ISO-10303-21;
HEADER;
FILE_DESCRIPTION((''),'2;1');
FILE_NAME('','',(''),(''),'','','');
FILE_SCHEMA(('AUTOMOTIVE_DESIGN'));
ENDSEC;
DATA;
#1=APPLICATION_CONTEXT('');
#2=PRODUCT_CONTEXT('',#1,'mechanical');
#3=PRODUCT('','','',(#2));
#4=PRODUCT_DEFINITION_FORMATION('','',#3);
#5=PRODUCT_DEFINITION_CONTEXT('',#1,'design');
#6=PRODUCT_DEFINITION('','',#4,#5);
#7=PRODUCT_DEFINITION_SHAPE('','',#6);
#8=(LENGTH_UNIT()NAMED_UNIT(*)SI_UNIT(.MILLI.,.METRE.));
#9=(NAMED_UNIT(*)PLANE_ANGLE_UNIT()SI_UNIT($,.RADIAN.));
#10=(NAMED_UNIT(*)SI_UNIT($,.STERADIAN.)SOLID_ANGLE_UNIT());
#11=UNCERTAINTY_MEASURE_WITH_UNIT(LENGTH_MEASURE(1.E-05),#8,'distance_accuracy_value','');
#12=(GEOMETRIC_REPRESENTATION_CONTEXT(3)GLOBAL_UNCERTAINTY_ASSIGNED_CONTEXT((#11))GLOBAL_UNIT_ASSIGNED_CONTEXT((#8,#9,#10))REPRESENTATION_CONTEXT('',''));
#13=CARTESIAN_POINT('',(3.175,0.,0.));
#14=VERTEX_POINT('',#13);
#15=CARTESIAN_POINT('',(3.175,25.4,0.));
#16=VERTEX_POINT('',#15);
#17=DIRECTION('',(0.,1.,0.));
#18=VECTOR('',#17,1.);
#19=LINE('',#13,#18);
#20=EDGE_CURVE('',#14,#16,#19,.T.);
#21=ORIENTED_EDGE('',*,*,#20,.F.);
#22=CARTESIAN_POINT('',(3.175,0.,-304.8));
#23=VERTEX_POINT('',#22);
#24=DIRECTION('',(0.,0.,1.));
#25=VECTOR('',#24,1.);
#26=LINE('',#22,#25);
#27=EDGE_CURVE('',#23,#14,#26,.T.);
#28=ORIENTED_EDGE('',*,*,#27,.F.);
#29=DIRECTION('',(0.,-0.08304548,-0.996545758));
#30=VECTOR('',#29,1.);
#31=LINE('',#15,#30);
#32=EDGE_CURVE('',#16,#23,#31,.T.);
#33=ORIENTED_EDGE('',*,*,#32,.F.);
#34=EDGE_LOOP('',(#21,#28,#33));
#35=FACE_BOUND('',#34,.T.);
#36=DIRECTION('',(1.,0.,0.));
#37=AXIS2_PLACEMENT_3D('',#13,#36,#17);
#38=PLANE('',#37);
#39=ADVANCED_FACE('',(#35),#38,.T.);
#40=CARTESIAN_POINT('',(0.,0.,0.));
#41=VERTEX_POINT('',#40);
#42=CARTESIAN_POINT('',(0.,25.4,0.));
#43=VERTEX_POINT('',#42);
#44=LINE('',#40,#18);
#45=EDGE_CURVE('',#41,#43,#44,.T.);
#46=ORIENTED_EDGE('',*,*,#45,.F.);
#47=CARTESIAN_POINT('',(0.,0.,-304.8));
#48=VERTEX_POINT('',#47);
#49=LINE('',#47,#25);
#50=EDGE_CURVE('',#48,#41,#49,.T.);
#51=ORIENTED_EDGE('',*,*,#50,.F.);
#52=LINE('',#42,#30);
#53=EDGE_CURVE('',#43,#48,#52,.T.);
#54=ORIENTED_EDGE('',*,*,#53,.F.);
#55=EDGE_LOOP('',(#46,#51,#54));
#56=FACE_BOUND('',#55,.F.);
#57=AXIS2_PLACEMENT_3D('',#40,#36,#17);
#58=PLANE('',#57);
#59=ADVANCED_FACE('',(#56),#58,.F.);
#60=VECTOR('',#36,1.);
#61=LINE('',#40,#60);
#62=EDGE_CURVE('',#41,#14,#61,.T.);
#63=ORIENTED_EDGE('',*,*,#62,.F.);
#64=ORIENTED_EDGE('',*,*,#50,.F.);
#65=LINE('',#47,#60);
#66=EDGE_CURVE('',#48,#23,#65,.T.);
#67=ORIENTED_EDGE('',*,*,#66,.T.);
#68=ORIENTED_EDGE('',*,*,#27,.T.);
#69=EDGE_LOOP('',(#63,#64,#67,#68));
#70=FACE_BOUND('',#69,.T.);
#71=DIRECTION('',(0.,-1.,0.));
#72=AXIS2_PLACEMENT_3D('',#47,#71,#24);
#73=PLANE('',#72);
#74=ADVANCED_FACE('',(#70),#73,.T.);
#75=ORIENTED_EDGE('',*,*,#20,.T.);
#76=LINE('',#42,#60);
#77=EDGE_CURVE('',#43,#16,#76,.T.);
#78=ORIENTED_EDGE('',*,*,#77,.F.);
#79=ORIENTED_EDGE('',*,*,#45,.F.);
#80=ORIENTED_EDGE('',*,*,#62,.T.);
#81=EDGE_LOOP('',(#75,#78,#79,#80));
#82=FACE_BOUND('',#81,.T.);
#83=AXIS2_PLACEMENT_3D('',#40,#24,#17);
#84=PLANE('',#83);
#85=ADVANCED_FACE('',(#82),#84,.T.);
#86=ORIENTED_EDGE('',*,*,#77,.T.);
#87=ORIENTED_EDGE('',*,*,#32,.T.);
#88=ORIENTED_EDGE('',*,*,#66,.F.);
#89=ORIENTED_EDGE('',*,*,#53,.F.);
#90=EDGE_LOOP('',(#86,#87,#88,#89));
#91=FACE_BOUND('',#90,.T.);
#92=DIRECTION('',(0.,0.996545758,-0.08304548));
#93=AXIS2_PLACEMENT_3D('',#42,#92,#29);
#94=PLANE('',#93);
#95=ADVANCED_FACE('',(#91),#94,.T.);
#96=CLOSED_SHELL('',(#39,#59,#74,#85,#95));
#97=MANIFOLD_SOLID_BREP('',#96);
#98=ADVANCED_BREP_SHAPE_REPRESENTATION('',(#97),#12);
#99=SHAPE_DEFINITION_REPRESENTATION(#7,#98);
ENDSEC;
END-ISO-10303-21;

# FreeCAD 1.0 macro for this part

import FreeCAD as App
import Part
import Sketcher
from FreeCAD import Vector
Q = App.Units.Quantity


def add_polygon(sketch, points):
    """Adds a closed chain of lines whose ends are joined by coincident constraints."""
    first, n = sketch.GeometryCount, len(points)
    for a, b in zip(points, points[1:] + points[:1]):
        sketch.addGeometry(Part.LineSegment(App.Vector(*a, 0), App.Vector(*b, 0)), False)
    for i in range(n):
        sketch.addConstraint(Sketcher.Constraint("Coincident", first + i, 2, first + (i + 1) % n, 1))

doc = App.newDocument("Part")
body = doc.addObject("PartDesign::Body", "Body")

sketch1 = doc.addObject("Sketcher::SketchObject", "Sketch")
body.addObject(sketch1)
sketch1.AttachmentSupport = (doc.YZ_Plane, [""])
sketch1.MapMode = "FlatFace"
add_polygon(sketch1, [(25.4, 0), (0, 0), (0, -304.8)])
sketch1.addConstraint(Sketcher.Constraint("Horizontal", 0))
sketch1.addConstraint(Sketcher.Constraint("Vertical", 1))
sketch1.addConstraint(Sketcher.Constraint("Coincident", 0, 2, -1, 1))
sketch1.addConstraint(Sketcher.Constraint("DistanceX", 0, 2, 0, 1, Q("1 in")))
sketch1.addConstraint(Sketcher.Constraint("DistanceY", 1, 2, 1, 1, Q("12 in")))
pad1 = doc.addObject("PartDesign::Pad", "Pad")
body.addObject(pad1)
pad1.Profile = sketch1
pad1.Length = Q("0.125 in")

doc.recompute()
